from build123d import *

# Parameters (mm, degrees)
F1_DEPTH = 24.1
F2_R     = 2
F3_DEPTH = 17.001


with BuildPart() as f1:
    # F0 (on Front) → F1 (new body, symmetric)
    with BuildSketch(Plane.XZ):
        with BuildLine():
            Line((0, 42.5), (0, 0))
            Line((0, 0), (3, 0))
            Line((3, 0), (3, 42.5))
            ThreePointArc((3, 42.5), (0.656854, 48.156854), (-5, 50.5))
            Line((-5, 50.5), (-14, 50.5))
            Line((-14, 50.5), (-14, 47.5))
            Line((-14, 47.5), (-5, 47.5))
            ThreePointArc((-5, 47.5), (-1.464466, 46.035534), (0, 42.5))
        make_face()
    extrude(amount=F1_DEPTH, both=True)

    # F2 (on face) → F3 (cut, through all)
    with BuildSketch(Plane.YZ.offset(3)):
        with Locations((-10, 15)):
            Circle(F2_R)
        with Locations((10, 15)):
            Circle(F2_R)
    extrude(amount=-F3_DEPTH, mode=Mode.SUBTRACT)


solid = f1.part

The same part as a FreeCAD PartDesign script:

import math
import FreeCAD as App
import Part
import Sketcher
from FreeCAD import Vector
Q = App.Units.Quantity

doc = App.newDocument("Part")
body = doc.addObject("PartDesign::Body", "Body")

sketch1 = body.newObject("Sketcher::SketchObject", "Sketch")
sketch1.AttachmentSupport = (doc.getObject("XZ_Plane"), [""])
sketch1.MapMode = "FlatFace"
sketch1.addGeometry([
    Part.LineSegment(Vector(0, 42.5, 0), Vector(0, 0, 0)),
    Part.LineSegment(Vector(0, 0, 0), Vector(3, 0, 0)),
    Part.LineSegment(Vector(3, 0, 0), Vector(3, 42.5, 0)),
    Part.ArcOfCircle(Part.Circle(Vector(-5, 42.5, 0), Vector(0, 0, 1), 8), math.radians(0), math.radians(90)),
    Part.LineSegment(Vector(-5, 50.5, 0), Vector(-14, 50.5, 0)),
    Part.LineSegment(Vector(-14, 50.5, 0), Vector(-14, 47.5, 0)),
    Part.LineSegment(Vector(-14, 47.5, 0), Vector(-5, 47.5, 0)),
    Part.ArcOfCircle(Part.Circle(Vector(-5, 42.5, 0), Vector(0, 0, 1), 5), math.radians(0), math.radians(90)),
], False)
sketch1.addConstraint([
    Sketcher.Constraint("Coincident", 0, 2, 1, 1),
    Sketcher.Constraint("Coincident", 1, 2, 2, 1),
    Sketcher.Constraint("Tangent", 2, 2, 3, 1),
    Sketcher.Constraint("Tangent", 3, 2, 4, 1),
    Sketcher.Constraint("Coincident", 4, 2, 5, 1),
    Sketcher.Constraint("Coincident", 5, 2, 6, 1),
    Sketcher.Constraint("Tangent", 6, 2, 7, 2),
    Sketcher.Constraint("Tangent", 7, 1, 0, 1),
    Sketcher.Constraint("Vertical", 0),
    Sketcher.Constraint("Horizontal", 1),
    Sketcher.Constraint("Vertical", 2),
    Sketcher.Constraint("Horizontal", 4),
    Sketcher.Constraint("Vertical", 5),
    Sketcher.Constraint("Horizontal", 6),
    Sketcher.Constraint("Coincident", 0, 2, -1, 1),
    Sketcher.Constraint("Coincident", 7, 3, 3, 3),
    Sketcher.Constraint("Radius", 3, Q("8.000001 mm")),
    Sketcher.Constraint("Radius", 7, Q("5 mm")),
    Sketcher.Constraint("DistanceX", 4, 2, 4, 1, Q("9 mm")),
    Sketcher.Constraint("DistanceY", 0, 2, 0, 1, Q("42.5 mm")),
])
pad1 = body.newObject("PartDesign::Pad", "Pad")
pad1.Profile = sketch1
pad1.Length = 48.2
pad1.Midplane = True

sketch2 = body.newObject("Sketcher::SketchObject", "Sketch001")
sketch2.AttachmentSupport = (doc.getObject("YZ_Plane"), [""])
sketch2.MapMode = "FlatFace"
sketch2.AttachmentOffset = App.Placement(Vector(0, 0, 3), App.Rotation())
sketch2.addGeometry([
    Part.Circle(Vector(-10, 15, 0), Vector(0, 0, 1), 2),
    Part.Circle(Vector(10, 15, 0), Vector(0, 0, 1), 2),
], False)
sketch2.addConstraint([
    Sketcher.Constraint("Equal", 0, 1),
    Sketcher.Constraint("Symmetric", 0, 3, 1, 3, -2),
    Sketcher.Constraint("Diameter", 0, Q("4 mm")),
    Sketcher.Constraint("DistanceX", 0, 3, -1, 1, Q("10 mm")),
    Sketcher.Constraint("DistanceY", -1, 1, 0, 3, Q("15 mm")),
])
pocket1 = body.newObject("PartDesign::Pocket", "Pocket")
pocket1.Profile = sketch2
pocket1.Type = "ThroughAll"

doc.recompute()
